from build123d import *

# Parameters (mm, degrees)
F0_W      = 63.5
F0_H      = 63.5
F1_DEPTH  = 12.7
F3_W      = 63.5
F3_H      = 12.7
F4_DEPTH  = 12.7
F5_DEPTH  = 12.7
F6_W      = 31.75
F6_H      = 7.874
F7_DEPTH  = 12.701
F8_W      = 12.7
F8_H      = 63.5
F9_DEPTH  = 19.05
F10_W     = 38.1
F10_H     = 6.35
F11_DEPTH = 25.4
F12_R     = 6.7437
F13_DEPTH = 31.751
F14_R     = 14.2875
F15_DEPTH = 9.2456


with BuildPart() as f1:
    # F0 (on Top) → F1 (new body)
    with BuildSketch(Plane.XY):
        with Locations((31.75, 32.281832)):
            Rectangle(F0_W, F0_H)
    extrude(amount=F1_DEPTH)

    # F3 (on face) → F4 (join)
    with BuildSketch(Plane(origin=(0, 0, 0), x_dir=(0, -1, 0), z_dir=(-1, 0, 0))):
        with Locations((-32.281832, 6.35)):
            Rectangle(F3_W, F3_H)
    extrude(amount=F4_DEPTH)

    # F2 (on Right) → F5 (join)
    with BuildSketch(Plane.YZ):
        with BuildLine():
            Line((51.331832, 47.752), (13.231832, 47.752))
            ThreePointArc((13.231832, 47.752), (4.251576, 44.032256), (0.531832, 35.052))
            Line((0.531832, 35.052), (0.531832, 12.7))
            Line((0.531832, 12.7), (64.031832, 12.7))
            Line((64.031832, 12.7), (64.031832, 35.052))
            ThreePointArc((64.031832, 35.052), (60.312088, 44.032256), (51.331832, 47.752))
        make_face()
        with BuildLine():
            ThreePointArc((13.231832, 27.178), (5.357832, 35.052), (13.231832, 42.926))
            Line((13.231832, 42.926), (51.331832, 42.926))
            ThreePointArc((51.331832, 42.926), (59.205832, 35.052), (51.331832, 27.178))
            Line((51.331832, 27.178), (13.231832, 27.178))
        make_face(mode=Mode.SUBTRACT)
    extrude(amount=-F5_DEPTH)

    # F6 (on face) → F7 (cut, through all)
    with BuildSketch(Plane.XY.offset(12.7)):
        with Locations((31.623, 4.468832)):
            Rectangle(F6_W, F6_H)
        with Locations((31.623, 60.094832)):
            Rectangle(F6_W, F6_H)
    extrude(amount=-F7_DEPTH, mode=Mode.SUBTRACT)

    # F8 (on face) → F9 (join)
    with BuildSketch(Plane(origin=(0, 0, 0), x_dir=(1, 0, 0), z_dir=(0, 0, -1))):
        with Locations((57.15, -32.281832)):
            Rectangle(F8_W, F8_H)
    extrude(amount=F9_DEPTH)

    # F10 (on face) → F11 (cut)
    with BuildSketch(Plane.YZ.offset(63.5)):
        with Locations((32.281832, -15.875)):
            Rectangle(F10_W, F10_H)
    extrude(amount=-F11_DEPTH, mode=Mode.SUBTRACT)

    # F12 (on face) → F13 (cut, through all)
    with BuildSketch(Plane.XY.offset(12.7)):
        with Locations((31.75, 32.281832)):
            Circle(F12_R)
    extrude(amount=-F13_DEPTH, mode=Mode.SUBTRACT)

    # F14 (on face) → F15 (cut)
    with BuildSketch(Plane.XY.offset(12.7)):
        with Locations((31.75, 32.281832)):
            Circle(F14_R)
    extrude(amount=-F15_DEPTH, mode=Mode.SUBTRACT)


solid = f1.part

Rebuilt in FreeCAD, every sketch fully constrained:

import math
import FreeCAD as App
import Part
import Sketcher

V = App.Vector
Q = App.Units.Quantity

doc = App.newDocument("Part")
body = doc.addObject("PartDesign::Body", "Body")

# Sketch on XY plane
sketch1 = doc.addObject("Sketcher::SketchObject", "Sketch")
body.addObject(sketch1)
sketch1.AttachmentSupport = (doc.XY_Plane, [""])
sketch1.MapMode = "FlatFace"
sketch1.addGeometry([
    Part.LineSegment(V(0, 64, 0), V(0, 1, 0)),
    Part.LineSegment(V(0, 1, 0), V(64, 1, 0)),
    Part.LineSegment(V(64, 1, 0), V(64, 64, 0)),
    Part.LineSegment(V(64, 64, 0), V(0, 64, 0)),
], False)
sketch1.addConstraint([
    Sketcher.Constraint("Coincident", 0, 2, 1, 1),
    Sketcher.Constraint("Coincident", 1, 2, 2, 1),
    Sketcher.Constraint("Coincident", 2, 2, 3, 1),
    Sketcher.Constraint("Coincident", 3, 2, 0, 1),
    Sketcher.Constraint("Vertical", 0),
    Sketcher.Constraint("Horizontal", 1),
    Sketcher.Constraint("Vertical", 2),
    Sketcher.Constraint("Horizontal", 3),
    Sketcher.Constraint("PointOnObject", 0, 2, -2),
    Sketcher.Constraint("Equal", 3, 0),
    Sketcher.Constraint("DistanceX", 1, 1, 1, 2, Q("2.5 in")),
    Sketcher.Constraint("DistanceY", -1, 1, 0, 2, Q("0.531832 mm")),
])
pad1 = doc.addObject("PartDesign::Pad", "Pad")
body.addObject(pad1)
pad1.Profile = sketch1
pad1.Length = Q("0.5 in")

# Sketch on YZ plane
sketch2 = doc.addObject("Sketcher::SketchObject", "Sketch001")
body.addObject(sketch2)
sketch2.AttachmentSupport = (doc.YZ_Plane, [""])
sketch2.MapMode = "FlatFace"
sketch2.addGeometry([
    Part.LineSegment(V(64, 13, 0), V(64, 0, 0)),
    Part.LineSegment(V(64, 0, 0), V(1, 0, 0)),
    Part.LineSegment(V(1, 0, 0), V(1, 13, 0)),
    Part.LineSegment(V(1, 13, 0), V(64, 13, 0)),
], False)
sketch2.addConstraint([
    Sketcher.Constraint("Coincident", 0, 2, 1, 1),
    Sketcher.Constraint("Coincident", 1, 2, 2, 1),
    Sketcher.Constraint("Coincident", 2, 2, 3, 1),
    Sketcher.Constraint("Coincident", 3, 2, 0, 1),
    Sketcher.Constraint("Vertical", 0),
    Sketcher.Constraint("Horizontal", 1),
    Sketcher.Constraint("Vertical", 2),
    Sketcher.Constraint("Horizontal", 3),
    Sketcher.Constraint("PointOnObject", 0, 2, -1),
    Sketcher.Constraint("DistanceX", 1, 2, 1, 1, Q("2.5 in")),
    Sketcher.Constraint("DistanceY", 0, 2, 0, 1, Q("0.5 in")),
    Sketcher.Constraint("DistanceX", -1, 1, 0, 2, Q("64.031832 mm")),
])
pad2 = doc.addObject("PartDesign::Pad", "Pad001")
body.addObject(pad2)
pad2.Profile = sketch2
pad2.Length = Q("0.5 in")
pad2.Reversed = True

# Sketch on YZ plane
sketch3 = doc.addObject("Sketcher::SketchObject", "Sketch002")
body.addObject(sketch3)
sketch3.AttachmentSupport = (doc.YZ_Plane, [""])
sketch3.MapMode = "FlatFace"
sketch3.addGeometry([
    Part.LineSegment(V(51, 48, 0), V(13, 48, 0)),  # 0
    Part.ArcOfCircle(Part.Circle(V(13, 35, 0), V(0, 0, 1), 13), math.radians(90), math.radians(180)),  # 1
    Part.LineSegment(V(1, 35, 0), V(1, 13, 0)),  # 2
    Part.LineSegment(V(1, 13, 0), V(64, 13, 0)),  # 3
    Part.LineSegment(V(64, 13, 0), V(64, 35, 0)),  # 4
    Part.ArcOfCircle(Part.Circle(V(51, 35, 0), V(0, 0, 1), 13), math.radians(0), math.radians(90)),  # 5
    Part.LineSegment(V(51, 27, 0), V(13, 27, 0)),  # 6
    Part.ArcOfCircle(Part.Circle(V(13, 35, 0), V(0, 0, 1), 8), math.radians(90), math.radians(270)),  # 7
    Part.LineSegment(V(13, 43, 0), V(51, 43, 0)),  # 8
    Part.ArcOfCircle(Part.Circle(V(51, 35, 0), V(0, 0, 1), 8), math.radians(-90), math.radians(90)),  # 9
], False)
sketch3.addConstraint([
    Sketcher.Constraint("Tangent", 0, 2, 1, 1),
    Sketcher.Constraint("Tangent", 1, 2, 2, 1),
    Sketcher.Constraint("Coincident", 2, 2, 3, 1),
    Sketcher.Constraint("Coincident", 3, 2, 4, 1),
    Sketcher.Constraint("Tangent", 4, 2, 5, 1),
    Sketcher.Constraint("Tangent", 5, 2, 0, 1),
    Sketcher.Constraint("Tangent", 6, 2, 7, 2),
    Sketcher.Constraint("Tangent", 7, 1, 8, 1),
    Sketcher.Constraint("Tangent", 8, 2, 9, 2),
    Sketcher.Constraint("Tangent", 9, 1, 6, 1),
    Sketcher.Constraint("Horizontal", 0),
    Sketcher.Constraint("Vertical", 2),
    Sketcher.Constraint("Horizontal", 3),
    Sketcher.Constraint("Vertical", 4),
    Sketcher.Constraint("Horizontal", 6),
    Sketcher.Constraint("Horizontal", 8),
    Sketcher.Constraint("Coincident", 7, 3, 1, 3),
    Sketcher.Constraint("Coincident", 9, 3, 5, 3),
    Sketcher.Constraint("Radius", 1, Q("0.5 in")),
    Sketcher.Constraint("Radius", 7, Q("0.31 in")),
    Sketcher.Constraint("DistanceX", 0, 2, 0, 1, Q("1.5 in")),
    Sketcher.Constraint("DistanceY", 2, 2, 2, 1, Q("0.88 in")),
    Sketcher.Constraint("DistanceY", -1, 1, 2, 2, Q("0.5 in")),
    Sketcher.Constraint("DistanceX", -1, 1, 5, 3, Q("51.331832 mm")),
])
pad3 = doc.addObject("PartDesign::Pad", "Pad002")
body.addObject(pad3)
pad3.Profile = sketch3
pad3.Length = Q("0.5 in")
pad3.Reversed = True

# Sketch on XY plane
sketch4 = doc.addObject("Sketcher::SketchObject", "Sketch003")
body.addObject(sketch4)
sketch4.AttachmentSupport = (doc.XY_Plane, [""])
sketch4.MapMode = "FlatFace"
sketch4.AttachmentOffset = App.Placement(V(0, 0, 0.5 * 25.4), App.Rotation())
sketch4.addGeometry([
    Part.LineSegment(V(16, 8, 0), V(16, 1, 0)),  # 0
    Part.LineSegment(V(16, 1, 0), V(47, 1, 0)),  # 1
    Part.LineSegment(V(47, 1, 0), V(47, 8, 0)),  # 2
    Part.LineSegment(V(47, 8, 0), V(16, 8, 0)),  # 3
    Part.LineSegment(V(16, 64, 0), V(16, 56, 0)),  # 4
    Part.LineSegment(V(16, 56, 0), V(47, 56, 0)),  # 5
    Part.LineSegment(V(47, 56, 0), V(47, 64, 0)),  # 6
    Part.LineSegment(V(47, 64, 0), V(16, 64, 0)),  # 7
], False)
sketch4.addConstraint([
    Sketcher.Constraint("Coincident", 0, 2, 1, 1),
    Sketcher.Constraint("Coincident", 1, 2, 2, 1),
    Sketcher.Constraint("Coincident", 2, 2, 3, 1),
    Sketcher.Constraint("Coincident", 3, 2, 0, 1),
    Sketcher.Constraint("Coincident", 4, 2, 5, 1),
    Sketcher.Constraint("Coincident", 5, 2, 6, 1),
    Sketcher.Constraint("Coincident", 6, 2, 7, 1),
    Sketcher.Constraint("Coincident", 7, 2, 4, 1),
    Sketcher.Constraint("Vertical", 0),
    Sketcher.Constraint("Horizontal", 1),
    Sketcher.Constraint("Vertical", 2),
    Sketcher.Constraint("Horizontal", 3),
    Sketcher.Constraint("Vertical", 4),
    Sketcher.Constraint("Horizontal", 5),
    Sketcher.Constraint("Vertical", 6),
    Sketcher.Constraint("Horizontal", 7),
    Sketcher.Constraint("Vertical", 3, 2, 4, 2),
    Sketcher.Constraint("Vertical", 2, 2, 5, 2),
    Sketcher.Constraint("Equal", 2, 4),
    Sketcher.Constraint("DistanceX", 1, 1, 1, 2, Q("1.25 in")),
    Sketcher.Constraint("DistanceY", 0, 2, 0, 1, Q("0.31 in")),
    Sketcher.Constraint("DistanceY", 1, 2, 6, 2, Q("2.5 in")),
    Sketcher.Constraint("DistanceX", -1, 1, 0, 2, Q("0.62 in")),
    Sketcher.Constraint("DistanceY", -1, 1, 0, 2, Q("0.531832 mm")),
])
pocket1 = doc.addObject("PartDesign::Pocket", "Pocket")
body.addObject(pocket1)
pocket1.Profile = sketch4
pocket1.Type = "ThroughAll"

# Sketch on XY plane
sketch5 = doc.addObject("Sketcher::SketchObject", "Sketch004")
body.addObject(sketch5)
sketch5.AttachmentSupport = (doc.XY_Plane, [""])
sketch5.MapMode = "FlatFace"
sketch5.addGeometry([
    Part.LineSegment(V(51, 1, 0), V(51, 64, 0)),
    Part.LineSegment(V(51, 64, 0), V(64, 64, 0)),
    Part.LineSegment(V(64, 64, 0), V(64, 1, 0)),
    Part.LineSegment(V(64, 1, 0), V(51, 1, 0)),
], False)
sketch5.addConstraint([
    Sketcher.Constraint("Coincident", 0, 2, 1, 1),
    Sketcher.Constraint("Coincident", 1, 2, 2, 1),
    Sketcher.Constraint("Coincident", 2, 2, 3, 1),
    Sketcher.Constraint("Coincident", 3, 2, 0, 1),
    Sketcher.Constraint("Vertical", 0),
    Sketcher.Constraint("Horizontal", 1),
    Sketcher.Constraint("Vertical", 2),
    Sketcher.Constraint("Horizontal", 3),
    Sketcher.Constraint("DistanceX", 1, 1, 1, 2, Q("0.5 in")),
    Sketcher.Constraint("DistanceY", 0, 1, 0, 2, Q("2.5 in")),
    Sketcher.Constraint("DistanceX", -1, 1, 0, 2, Q("2 in")),
    Sketcher.Constraint("DistanceY", -1, 1, 0, 2, Q("64.031832 mm")),
])
pad4 = doc.addObject("PartDesign::Pad", "Pad003")
body.addObject(pad4)
pad4.Profile = sketch5
pad4.Length = Q("0.75 in")
pad4.Reversed = True

# Sketch on YZ plane
sketch6 = doc.addObject("Sketcher::SketchObject", "Sketch005")
body.addObject(sketch6)
sketch6.AttachmentSupport = (doc.YZ_Plane, [""])
sketch6.MapMode = "FlatFace"
sketch6.AttachmentOffset = App.Placement(V(0, 0, 2.5 * 25.4), App.Rotation())
sketch6.addGeometry([
    Part.LineSegment(V(13, -13, 0), V(13, -19, 0)),
    Part.LineSegment(V(13, -19, 0), V(51, -19, 0)),
    Part.LineSegment(V(51, -19, 0), V(51, -13, 0)),
    Part.LineSegment(V(51, -13, 0), V(13, -13, 0)),
], False)
sketch6.addConstraint([
    Sketcher.Constraint("Coincident", 0, 2, 1, 1),
    Sketcher.Constraint("Coincident", 1, 2, 2, 1),
    Sketcher.Constraint("Coincident", 2, 2, 3, 1),
    Sketcher.Constraint("Coincident", 3, 2, 0, 1),
    Sketcher.Constraint("Vertical", 0),
    Sketcher.Constraint("Horizontal", 1),
    Sketcher.Constraint("Vertical", 2),
    Sketcher.Constraint("Horizontal", 3),
    Sketcher.Constraint("DistanceX", 1, 1, 1, 2, Q("1.5 in")),
    Sketcher.Constraint("DistanceY", 0, 2, 0, 1, Q("0.25 in")),
    Sketcher.Constraint("DistanceY", 2, 2, -1, 1, Q("0.5 in")),
    Sketcher.Constraint("DistanceX", -1, 1, 0, 2, Q("13.231832 mm")),
])
pocket2 = doc.addObject("PartDesign::Pocket", "Pocket001")
body.addObject(pocket2)
pocket2.Profile = sketch6
pocket2.Length = Q("1 in")

# Sketch on XY plane
sketch7 = doc.addObject("Sketcher::SketchObject", "Sketch006")
body.addObject(sketch7)
sketch7.AttachmentSupport = (doc.XY_Plane, [""])
sketch7.MapMode = "FlatFace"
sketch7.AttachmentOffset = App.Placement(V(0, 0, 0.5 * 25.4), App.Rotation())
sketch7.addGeometry(Part.Circle(V(32, 32, 0), V(0, 0, 1), 7), False)
sketch7.addConstraint([
    Sketcher.Constraint("Diameter", 0, Q("0.531 in")),
    Sketcher.Constraint("DistanceX", -1, 1, 0, 3, Q("1.25 in")),
    Sketcher.Constraint("DistanceY", -1, 1, 0, 3, Q("32.281832 mm")),
])
pocket3 = doc.addObject("PartDesign::Pocket", "Pocket002")
body.addObject(pocket3)
pocket3.Profile = sketch7
pocket3.Type = "ThroughAll"

# Sketch on XY plane
sketch8 = doc.addObject("Sketcher::SketchObject", "Sketch007")
body.addObject(sketch8)
sketch8.AttachmentSupport = (doc.XY_Plane, [""])
sketch8.MapMode = "FlatFace"
sketch8.AttachmentOffset = App.Placement(V(0, 0, 0.5 * 25.4), App.Rotation())
sketch8.addGeometry(Part.Circle(V(32, 32, 0), V(0, 0, 1), 14), False)
sketch8.addConstraint([
    Sketcher.Constraint("Diameter", 0, Q("1.125 in")),
    Sketcher.Constraint("DistanceX", -1, 1, 0, 3, Q("1.25 in")),
    Sketcher.Constraint("DistanceY", -1, 1, 0, 3, Q("32.281832 mm")),
])
pocket4 = doc.addObject("PartDesign::Pocket", "Pocket003")
body.addObject(pocket4)
pocket4.Profile = sketch8
pocket4.Length = Q("0.364 in")

doc.recompute()
